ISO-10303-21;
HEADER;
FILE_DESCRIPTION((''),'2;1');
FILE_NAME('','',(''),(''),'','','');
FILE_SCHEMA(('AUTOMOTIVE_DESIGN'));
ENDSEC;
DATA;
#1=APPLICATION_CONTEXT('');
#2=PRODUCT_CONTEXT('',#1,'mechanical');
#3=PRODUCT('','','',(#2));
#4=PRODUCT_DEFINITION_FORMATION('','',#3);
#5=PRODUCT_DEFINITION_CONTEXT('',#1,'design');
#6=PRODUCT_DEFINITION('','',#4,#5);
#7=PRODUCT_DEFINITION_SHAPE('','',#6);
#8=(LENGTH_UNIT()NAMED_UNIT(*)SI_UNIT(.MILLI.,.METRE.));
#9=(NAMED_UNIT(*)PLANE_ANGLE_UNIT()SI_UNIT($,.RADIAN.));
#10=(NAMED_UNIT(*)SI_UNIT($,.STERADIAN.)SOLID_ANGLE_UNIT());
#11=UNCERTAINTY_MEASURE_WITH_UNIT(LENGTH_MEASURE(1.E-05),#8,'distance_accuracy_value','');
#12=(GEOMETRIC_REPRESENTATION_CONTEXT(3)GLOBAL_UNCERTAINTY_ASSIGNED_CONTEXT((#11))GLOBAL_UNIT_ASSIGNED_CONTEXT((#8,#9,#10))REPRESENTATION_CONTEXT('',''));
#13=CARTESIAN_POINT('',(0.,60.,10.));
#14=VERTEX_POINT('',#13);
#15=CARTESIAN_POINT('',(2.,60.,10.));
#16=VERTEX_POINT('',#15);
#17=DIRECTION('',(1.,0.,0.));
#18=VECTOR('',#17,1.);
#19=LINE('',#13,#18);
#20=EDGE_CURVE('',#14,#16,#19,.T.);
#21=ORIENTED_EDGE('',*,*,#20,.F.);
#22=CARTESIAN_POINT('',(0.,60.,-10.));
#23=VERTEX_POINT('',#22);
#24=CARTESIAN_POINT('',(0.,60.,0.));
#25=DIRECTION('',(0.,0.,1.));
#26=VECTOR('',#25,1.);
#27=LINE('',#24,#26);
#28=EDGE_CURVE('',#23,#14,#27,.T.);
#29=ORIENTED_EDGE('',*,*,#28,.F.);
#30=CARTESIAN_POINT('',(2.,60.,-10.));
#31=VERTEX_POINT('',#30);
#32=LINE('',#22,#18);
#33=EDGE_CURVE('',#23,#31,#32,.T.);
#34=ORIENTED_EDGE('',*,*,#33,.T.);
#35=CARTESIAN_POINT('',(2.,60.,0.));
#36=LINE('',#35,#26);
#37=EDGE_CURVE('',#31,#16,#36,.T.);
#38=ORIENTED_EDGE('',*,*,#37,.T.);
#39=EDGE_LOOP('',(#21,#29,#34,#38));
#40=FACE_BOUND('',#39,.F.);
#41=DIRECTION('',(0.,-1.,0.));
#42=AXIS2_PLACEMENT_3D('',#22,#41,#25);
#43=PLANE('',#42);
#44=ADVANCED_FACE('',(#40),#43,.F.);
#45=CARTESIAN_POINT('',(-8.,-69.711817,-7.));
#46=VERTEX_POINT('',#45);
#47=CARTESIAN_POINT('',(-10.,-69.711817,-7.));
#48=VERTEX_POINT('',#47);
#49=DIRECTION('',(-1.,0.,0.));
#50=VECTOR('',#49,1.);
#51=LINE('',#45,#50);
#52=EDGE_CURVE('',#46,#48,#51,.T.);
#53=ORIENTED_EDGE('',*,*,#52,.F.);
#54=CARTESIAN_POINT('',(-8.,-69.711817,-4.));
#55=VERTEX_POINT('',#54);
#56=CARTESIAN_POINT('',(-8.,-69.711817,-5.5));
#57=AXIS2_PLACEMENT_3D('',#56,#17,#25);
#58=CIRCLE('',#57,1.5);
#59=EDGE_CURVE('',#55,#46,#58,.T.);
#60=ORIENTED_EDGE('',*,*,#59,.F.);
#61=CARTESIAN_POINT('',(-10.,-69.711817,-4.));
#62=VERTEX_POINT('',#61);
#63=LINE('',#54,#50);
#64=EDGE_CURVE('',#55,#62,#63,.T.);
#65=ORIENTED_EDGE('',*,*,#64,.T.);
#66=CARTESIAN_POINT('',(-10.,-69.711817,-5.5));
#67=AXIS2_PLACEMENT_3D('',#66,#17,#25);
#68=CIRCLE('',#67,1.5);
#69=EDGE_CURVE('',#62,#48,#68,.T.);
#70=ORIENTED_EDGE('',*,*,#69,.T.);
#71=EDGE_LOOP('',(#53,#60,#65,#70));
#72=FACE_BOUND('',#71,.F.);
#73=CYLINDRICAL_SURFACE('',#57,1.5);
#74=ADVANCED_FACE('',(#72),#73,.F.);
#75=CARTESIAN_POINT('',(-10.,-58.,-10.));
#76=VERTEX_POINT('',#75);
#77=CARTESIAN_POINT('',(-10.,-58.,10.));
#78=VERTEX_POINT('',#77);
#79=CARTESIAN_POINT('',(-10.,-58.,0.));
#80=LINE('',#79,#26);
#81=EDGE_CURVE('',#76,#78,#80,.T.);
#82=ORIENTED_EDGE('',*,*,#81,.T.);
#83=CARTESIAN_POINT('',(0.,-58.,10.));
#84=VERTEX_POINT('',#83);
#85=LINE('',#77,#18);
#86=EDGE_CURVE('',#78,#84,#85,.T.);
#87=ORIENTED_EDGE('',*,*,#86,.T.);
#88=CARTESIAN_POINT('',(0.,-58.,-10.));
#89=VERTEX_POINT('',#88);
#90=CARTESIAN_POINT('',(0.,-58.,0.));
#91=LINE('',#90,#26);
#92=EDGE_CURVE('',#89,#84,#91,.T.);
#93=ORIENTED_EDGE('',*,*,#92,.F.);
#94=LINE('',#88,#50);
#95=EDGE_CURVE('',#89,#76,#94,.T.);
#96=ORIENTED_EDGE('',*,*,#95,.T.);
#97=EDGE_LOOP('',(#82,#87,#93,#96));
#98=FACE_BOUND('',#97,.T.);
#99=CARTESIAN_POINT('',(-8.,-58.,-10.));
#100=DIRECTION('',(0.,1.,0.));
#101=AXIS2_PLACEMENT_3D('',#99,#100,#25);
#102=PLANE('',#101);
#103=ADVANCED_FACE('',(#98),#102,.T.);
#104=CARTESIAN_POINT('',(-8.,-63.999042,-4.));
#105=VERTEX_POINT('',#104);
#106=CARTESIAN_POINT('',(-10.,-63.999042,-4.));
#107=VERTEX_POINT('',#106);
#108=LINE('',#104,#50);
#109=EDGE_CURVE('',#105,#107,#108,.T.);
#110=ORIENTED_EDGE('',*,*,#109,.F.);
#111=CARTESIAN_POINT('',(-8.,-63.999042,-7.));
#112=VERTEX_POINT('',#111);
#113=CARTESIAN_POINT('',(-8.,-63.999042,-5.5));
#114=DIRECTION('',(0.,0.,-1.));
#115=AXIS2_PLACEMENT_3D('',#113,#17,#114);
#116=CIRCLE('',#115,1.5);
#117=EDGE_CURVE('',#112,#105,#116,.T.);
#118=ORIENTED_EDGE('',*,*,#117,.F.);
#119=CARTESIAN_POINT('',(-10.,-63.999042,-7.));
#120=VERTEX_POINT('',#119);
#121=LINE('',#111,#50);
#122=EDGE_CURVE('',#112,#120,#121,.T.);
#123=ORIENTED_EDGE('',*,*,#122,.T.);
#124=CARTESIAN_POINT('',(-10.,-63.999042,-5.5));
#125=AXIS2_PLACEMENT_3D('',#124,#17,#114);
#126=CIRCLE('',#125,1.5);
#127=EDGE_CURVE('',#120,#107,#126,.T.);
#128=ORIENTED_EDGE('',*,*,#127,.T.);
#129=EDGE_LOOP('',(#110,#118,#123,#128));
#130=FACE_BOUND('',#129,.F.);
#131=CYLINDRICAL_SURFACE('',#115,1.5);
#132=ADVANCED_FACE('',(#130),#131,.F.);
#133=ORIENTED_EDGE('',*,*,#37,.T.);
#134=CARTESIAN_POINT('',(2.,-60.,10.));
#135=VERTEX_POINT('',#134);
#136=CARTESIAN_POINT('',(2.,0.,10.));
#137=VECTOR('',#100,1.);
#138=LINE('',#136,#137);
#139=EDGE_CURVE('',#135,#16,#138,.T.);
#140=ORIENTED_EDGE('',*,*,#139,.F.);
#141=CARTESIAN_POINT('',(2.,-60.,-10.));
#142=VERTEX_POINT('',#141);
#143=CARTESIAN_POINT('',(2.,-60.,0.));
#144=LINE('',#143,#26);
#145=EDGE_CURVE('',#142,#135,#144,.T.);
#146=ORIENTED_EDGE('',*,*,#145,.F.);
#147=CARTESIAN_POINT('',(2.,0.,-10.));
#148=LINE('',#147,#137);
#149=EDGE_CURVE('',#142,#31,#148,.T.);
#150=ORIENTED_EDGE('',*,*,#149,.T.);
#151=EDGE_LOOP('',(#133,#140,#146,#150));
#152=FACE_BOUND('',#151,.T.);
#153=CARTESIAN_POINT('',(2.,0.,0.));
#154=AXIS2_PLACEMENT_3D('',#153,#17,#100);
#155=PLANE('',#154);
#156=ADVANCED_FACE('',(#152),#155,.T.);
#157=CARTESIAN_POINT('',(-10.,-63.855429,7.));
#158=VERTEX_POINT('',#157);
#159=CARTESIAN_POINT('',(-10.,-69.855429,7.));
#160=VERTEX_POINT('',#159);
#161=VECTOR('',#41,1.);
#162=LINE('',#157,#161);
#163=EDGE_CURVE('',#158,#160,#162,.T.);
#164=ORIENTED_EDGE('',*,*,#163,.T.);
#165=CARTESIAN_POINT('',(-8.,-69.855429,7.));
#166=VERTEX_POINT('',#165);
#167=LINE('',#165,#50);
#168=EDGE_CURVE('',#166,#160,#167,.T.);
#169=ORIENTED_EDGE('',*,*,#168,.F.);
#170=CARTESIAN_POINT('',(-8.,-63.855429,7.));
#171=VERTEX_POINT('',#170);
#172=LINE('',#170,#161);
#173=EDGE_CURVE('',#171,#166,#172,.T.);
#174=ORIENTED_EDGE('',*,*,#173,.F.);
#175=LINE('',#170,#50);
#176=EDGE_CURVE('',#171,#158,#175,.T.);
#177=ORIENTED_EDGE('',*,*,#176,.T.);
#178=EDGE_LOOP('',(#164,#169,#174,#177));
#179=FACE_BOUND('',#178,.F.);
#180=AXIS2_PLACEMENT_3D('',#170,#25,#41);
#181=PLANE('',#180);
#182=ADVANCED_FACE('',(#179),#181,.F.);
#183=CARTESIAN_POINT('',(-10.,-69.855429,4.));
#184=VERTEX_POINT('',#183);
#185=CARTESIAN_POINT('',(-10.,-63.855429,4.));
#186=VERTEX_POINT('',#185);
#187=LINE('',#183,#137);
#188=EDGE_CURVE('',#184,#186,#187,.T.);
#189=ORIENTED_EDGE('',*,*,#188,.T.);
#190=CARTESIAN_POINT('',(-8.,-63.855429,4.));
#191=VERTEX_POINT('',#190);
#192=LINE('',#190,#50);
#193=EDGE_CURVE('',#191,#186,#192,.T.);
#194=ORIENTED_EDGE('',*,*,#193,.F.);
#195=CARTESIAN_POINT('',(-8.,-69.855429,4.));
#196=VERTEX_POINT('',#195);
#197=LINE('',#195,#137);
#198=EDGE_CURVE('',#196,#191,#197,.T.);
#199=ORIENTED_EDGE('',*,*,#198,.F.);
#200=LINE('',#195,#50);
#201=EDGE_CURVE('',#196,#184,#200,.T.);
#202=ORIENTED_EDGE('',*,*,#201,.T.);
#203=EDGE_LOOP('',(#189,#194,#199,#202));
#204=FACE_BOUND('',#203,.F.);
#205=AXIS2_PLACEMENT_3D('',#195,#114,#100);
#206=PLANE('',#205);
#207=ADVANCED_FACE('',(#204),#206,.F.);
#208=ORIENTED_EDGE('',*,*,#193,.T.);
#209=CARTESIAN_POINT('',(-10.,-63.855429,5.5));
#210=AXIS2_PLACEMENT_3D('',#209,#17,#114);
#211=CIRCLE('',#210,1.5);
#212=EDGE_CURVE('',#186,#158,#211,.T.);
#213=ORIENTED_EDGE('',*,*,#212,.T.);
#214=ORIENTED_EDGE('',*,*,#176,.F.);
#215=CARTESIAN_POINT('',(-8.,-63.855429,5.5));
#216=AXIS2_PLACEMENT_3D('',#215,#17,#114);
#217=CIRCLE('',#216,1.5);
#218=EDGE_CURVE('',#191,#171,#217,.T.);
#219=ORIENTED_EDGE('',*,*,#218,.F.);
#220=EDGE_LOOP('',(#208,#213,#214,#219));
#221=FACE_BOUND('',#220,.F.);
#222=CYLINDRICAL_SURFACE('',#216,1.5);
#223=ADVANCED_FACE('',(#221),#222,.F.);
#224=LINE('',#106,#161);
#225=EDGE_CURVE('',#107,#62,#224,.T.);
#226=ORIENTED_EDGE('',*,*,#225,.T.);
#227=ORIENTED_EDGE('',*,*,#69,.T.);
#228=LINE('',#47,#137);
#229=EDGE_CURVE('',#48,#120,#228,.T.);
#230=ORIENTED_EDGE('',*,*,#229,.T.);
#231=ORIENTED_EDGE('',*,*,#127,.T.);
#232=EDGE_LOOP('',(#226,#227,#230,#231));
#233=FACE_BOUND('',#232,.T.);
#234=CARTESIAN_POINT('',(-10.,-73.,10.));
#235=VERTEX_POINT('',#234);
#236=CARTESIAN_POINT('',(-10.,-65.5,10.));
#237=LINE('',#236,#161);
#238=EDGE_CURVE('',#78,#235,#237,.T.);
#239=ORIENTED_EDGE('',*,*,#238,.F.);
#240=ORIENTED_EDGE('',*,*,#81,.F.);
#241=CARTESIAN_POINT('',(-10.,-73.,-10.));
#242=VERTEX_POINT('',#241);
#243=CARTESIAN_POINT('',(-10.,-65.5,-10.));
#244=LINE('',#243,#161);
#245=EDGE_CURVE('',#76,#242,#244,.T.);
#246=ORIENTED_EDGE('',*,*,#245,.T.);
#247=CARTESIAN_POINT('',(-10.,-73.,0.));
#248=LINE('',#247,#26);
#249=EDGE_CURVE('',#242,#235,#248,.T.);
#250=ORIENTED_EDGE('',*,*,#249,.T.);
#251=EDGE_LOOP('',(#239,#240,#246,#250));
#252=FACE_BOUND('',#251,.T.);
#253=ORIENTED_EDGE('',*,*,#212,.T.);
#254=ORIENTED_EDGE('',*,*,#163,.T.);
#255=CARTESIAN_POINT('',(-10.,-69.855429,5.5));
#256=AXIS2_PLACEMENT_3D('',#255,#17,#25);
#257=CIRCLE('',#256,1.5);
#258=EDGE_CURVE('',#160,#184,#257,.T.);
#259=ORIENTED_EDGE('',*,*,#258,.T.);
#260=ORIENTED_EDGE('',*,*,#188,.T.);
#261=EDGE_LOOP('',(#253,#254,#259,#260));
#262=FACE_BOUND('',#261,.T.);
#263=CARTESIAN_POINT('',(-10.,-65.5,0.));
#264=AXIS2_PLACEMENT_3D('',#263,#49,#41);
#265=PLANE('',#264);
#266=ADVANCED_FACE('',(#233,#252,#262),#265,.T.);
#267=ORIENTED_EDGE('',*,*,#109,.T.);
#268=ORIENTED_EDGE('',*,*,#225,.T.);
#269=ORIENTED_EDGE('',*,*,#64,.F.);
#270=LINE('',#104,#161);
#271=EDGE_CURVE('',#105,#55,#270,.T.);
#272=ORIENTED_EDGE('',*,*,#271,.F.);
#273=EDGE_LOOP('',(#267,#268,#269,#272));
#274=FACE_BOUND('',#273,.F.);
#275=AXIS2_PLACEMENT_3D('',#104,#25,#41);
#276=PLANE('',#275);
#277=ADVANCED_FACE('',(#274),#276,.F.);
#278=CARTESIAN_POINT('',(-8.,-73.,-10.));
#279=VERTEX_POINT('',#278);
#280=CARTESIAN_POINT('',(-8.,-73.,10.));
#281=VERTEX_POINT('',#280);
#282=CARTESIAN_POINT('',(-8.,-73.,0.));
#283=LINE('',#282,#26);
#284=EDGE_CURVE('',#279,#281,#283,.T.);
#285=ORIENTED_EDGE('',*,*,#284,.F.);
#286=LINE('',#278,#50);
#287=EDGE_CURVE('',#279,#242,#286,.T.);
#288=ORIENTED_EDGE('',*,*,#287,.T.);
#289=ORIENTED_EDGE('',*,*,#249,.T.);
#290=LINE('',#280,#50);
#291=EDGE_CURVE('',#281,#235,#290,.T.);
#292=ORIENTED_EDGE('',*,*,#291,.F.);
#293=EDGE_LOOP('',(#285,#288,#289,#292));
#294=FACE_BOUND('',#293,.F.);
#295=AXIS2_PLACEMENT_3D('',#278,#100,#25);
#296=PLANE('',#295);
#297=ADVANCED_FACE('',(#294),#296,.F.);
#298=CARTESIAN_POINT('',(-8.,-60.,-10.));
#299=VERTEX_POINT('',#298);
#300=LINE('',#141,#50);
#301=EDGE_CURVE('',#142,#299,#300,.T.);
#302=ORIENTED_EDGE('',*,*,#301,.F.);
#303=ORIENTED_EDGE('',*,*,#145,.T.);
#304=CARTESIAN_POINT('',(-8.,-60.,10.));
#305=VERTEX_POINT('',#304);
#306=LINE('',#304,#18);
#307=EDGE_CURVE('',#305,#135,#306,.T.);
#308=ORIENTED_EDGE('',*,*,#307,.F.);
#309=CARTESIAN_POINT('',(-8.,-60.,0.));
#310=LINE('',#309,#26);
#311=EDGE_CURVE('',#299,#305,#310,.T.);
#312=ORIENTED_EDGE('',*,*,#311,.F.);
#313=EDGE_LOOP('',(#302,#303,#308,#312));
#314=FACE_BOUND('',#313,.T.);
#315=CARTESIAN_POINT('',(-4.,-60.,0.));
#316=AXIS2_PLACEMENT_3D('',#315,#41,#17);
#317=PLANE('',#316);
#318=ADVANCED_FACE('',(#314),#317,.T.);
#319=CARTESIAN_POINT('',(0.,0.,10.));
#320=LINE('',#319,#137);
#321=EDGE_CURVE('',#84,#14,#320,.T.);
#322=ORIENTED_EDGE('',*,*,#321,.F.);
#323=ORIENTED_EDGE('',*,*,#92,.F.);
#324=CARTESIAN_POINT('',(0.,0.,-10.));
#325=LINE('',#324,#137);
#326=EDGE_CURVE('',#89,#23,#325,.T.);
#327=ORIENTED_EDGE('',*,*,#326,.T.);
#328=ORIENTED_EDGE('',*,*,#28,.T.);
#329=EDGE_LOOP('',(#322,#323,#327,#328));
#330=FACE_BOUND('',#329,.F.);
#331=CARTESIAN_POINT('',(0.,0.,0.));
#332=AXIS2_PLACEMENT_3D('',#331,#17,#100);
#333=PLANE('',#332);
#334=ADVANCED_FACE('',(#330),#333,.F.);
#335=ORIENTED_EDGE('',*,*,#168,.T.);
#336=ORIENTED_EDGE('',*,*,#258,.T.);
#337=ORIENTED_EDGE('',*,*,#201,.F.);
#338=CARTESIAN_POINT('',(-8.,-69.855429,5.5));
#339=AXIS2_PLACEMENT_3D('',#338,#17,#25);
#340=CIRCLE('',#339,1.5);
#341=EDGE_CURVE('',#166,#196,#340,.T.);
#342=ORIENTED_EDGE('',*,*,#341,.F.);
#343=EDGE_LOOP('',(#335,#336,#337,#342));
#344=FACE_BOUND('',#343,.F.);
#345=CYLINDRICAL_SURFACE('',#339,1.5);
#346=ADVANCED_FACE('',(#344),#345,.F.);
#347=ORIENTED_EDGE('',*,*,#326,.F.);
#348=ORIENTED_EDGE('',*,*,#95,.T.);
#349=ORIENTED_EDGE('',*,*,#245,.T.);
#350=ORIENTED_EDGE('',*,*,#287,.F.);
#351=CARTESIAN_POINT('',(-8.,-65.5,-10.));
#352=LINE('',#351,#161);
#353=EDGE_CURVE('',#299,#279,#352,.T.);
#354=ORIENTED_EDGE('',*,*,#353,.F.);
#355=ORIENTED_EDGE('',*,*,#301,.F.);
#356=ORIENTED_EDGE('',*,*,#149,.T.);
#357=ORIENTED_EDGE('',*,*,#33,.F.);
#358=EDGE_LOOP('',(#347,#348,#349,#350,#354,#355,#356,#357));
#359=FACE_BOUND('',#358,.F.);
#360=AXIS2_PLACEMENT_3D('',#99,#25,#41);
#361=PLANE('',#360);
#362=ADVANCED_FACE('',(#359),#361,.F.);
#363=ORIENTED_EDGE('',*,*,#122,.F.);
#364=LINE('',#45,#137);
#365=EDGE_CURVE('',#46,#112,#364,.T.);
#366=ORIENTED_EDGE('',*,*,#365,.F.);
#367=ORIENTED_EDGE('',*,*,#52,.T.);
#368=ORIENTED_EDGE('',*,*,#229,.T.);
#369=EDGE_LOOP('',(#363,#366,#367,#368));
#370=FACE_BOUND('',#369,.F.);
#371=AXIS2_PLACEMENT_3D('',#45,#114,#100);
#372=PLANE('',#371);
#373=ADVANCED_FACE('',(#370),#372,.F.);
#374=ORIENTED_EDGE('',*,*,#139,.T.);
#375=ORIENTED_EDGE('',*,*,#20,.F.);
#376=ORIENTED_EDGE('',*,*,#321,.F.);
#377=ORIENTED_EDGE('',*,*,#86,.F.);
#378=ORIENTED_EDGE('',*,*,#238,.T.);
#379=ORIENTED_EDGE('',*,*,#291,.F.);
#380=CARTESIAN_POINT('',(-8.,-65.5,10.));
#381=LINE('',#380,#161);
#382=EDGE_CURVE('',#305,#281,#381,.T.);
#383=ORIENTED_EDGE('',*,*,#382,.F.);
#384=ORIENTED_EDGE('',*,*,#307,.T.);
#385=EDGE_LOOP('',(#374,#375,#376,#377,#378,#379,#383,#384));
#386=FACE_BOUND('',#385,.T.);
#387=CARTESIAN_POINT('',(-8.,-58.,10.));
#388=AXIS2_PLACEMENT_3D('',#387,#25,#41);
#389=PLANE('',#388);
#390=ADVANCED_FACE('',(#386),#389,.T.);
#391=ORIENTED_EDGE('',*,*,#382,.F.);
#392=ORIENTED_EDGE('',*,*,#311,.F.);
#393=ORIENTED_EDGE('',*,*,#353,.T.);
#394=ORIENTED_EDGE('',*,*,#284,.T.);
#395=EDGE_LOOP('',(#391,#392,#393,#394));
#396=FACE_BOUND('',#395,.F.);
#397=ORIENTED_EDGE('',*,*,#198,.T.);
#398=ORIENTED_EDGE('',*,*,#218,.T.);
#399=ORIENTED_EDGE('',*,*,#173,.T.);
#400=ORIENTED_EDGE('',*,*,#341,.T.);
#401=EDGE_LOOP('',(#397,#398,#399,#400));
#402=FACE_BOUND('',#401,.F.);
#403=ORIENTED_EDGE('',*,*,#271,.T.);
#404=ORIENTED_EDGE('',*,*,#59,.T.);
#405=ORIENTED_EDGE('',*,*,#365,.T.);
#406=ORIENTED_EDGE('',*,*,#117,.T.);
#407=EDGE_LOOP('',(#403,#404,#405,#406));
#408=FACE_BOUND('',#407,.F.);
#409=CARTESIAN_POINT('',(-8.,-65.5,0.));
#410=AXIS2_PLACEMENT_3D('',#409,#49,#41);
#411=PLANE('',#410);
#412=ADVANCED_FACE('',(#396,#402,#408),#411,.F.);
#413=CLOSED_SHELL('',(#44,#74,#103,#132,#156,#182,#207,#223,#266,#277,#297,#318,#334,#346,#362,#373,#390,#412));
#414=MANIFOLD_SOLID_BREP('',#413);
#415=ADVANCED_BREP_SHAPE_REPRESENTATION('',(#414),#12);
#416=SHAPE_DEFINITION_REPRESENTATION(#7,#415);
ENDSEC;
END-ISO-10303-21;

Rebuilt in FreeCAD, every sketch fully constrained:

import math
import FreeCAD as App
import Part
import Sketcher


def add_polygon(sketch, points):
    """Adds a closed chain of lines whose ends are joined by coincident constraints."""
    first, n = sketch.GeometryCount, len(points)
    for a, b in zip(points, points[1:] + points[:1]):
        sketch.addGeometry(Part.LineSegment(App.Vector(*a, 0), App.Vector(*b, 0)), False)
    for i in range(n):
        sketch.addConstraint(Sketcher.Constraint("Coincident", first + i, 2, first + (i + 1) % n, 1))

doc = App.newDocument("Part")
body = doc.addObject("PartDesign::Body", "Body")

# Sketch on YZ plane
sketch1 = body.newObject("Sketcher::SketchObject", "Sketch")
sketch1.AttachmentSupport = (doc.getObject("YZ_Plane"), [""])
sketch1.MapMode = "FlatFace"
add_polygon(sketch1, [(-60, 10), (-60, -10), (60, -10), (60, 10)])  # lines 0-3
sketch1.addConstraint([
    Sketcher.Constraint("Vertical", 0),
    Sketcher.Constraint("Horizontal", 1),
    Sketcher.Constraint("Vertical", 2),
    Sketcher.Constraint("Horizontal", 3),
    Sketcher.Constraint("Symmetric", 0, 2, 2, 2, -1, 1),
    Sketcher.Constraint("DistanceX", 1, 1, 1, 2, 120.0),
    Sketcher.Constraint("DistanceY", 0, 2, 0, 1, 20.0),
])
pad1 = body.newObject("PartDesign::Pad", "Pad")
pad1.Profile = sketch1
pad1.Length = 2

# Sketch on XZ plane
sketch2 = body.newObject("Sketcher::SketchObject", "Sketch001")
sketch2.AttachmentSupport = (doc.getObject("XZ_Plane"), [""])
sketch2.MapMode = "FlatFace"
sketch2.AttachmentOffset = App.Placement(App.Vector(0, 0, 60), App.Rotation())
add_polygon(sketch2, [(-8, 10), (-8, -10), (0, -10), (0, 10)])  # lines 0-3
sketch2.addConstraint([
    Sketcher.Constraint("Vertical", 0),
    Sketcher.Constraint("Horizontal", 1),
    Sketcher.Constraint("Vertical", 2),
    Sketcher.Constraint("Horizontal", 3),
    Sketcher.Constraint("Symmetric", 1, 2, 2, 2, -1, 1),
    Sketcher.Constraint("DistanceX", 1, 1, 1, 2, 8.0),
    Sketcher.Constraint("DistanceY", 0, 2, 0, 1, 20.0),
])
pad2 = body.newObject("PartDesign::Pad", "Pad001")
pad2.Profile = sketch2
pad2.Length = 2
pad2.Reversed = True

# Sketch on YZ plane
sketch3 = body.newObject("Sketcher::SketchObject", "Sketch002")
sketch3.AttachmentSupport = (doc.getObject("YZ_Plane"), [""])
sketch3.MapMode = "FlatFace"
sketch3.AttachmentOffset = App.Placement(App.Vector(0, 0, -8), App.Rotation())
add_polygon(sketch3, [(-58, 10), (-58, -10), (-73, -10), (-73, 10)])  # lines 0-3
sketch3.addGeometry(Part.ArcOfCircle(Part.Circle(App.Vector(-69.7, -5.5, 0), App.Vector(0, 0, 1), 1.5), math.radians(90), math.radians(270)), False)  # 4
sketch3.addGeometry(Part.LineSegment(App.Vector(-69.7, -7, 0), App.Vector(-64, -7, 0)), False)  # 5
sketch3.addGeometry(Part.ArcOfCircle(Part.Circle(App.Vector(-64, -5.5, 0), App.Vector(0, 0, 1), 1.5), math.radians(-90), math.radians(90)), False)  # 6
sketch3.addGeometry(Part.LineSegment(App.Vector(-64, -4, 0), App.Vector(-69.7, -4, 0)), False)  # 7
sketch3.addGeometry(Part.ArcOfCircle(Part.Circle(App.Vector(-69.9, 5.5, 0), App.Vector(0, 0, 1), 1.5), math.radians(90), math.radians(270)), False)  # 8
sketch3.addGeometry(Part.LineSegment(App.Vector(-69.9, 4, 0), App.Vector(-63.9, 4, 0)), False)  # 9
sketch3.addGeometry(Part.ArcOfCircle(Part.Circle(App.Vector(-63.9, 5.5, 0), App.Vector(0, 0, 1), 1.5), math.radians(-90), math.radians(90)), False)  # 10
sketch3.addGeometry(Part.LineSegment(App.Vector(-63.9, 7, 0), App.Vector(-69.9, 7, 0)), False)  # 11
sketch3.addConstraint([
    Sketcher.Constraint("Tangent", 4, 2, 5, 1),
    Sketcher.Constraint("Tangent", 5, 2, 6, 1),
    Sketcher.Constraint("Tangent", 6, 2, 7, 1),
    Sketcher.Constraint("Tangent", 7, 2, 4, 1),
    Sketcher.Constraint("Tangent", 8, 2, 9, 1),
    Sketcher.Constraint("Tangent", 9, 2, 10, 1),
    Sketcher.Constraint("Tangent", 10, 2, 11, 1),
    Sketcher.Constraint("Tangent", 11, 2, 8, 1),
    Sketcher.Constraint("Vertical", 0),
    Sketcher.Constraint("Horizontal", 1),
    Sketcher.Constraint("Vertical", 2),
    Sketcher.Constraint("Horizontal", 3),
    Sketcher.Constraint("Horizontal", 5),
    Sketcher.Constraint("Horizontal", 7),
    Sketcher.Constraint("Horizontal", 9),
    Sketcher.Constraint("Horizontal", 11),
    Sketcher.Constraint("Equal", 6, 8),
    Sketcher.Constraint("Radius", 4, 1.5),
    Sketcher.Constraint("DistanceX", 1, 2, 1, 1, 15.0),
    Sketcher.Constraint("DistanceX", 9, 1, 9, 2, 6.0),
    Sketcher.Constraint("DistanceY", 0, 2, 0, 1, 20.0),
    Sketcher.Constraint("DistanceX", 0, 2, -1, 1, 58.0),
    Sketcher.Constraint("DistanceY", 0, 2, -1, 1, 10.0),
    Sketcher.Constraint("DistanceY", 4, 2, -1, 1, 7.0),
    Sketcher.Constraint("DistanceY", -1, 1, 8, 2, 4.0),
    Sketcher.Constraint("DistanceX", 5, 1, 5, 2, 5.712775),
    Sketcher.Constraint("DistanceX", 8, 3, -1, 1, 69.855429),
    Sketcher.Constraint("DistanceX", 4, 3, -1, 1, 69.711817),
])
pad3 = body.newObject("PartDesign::Pad", "Pad002")
pad3.Profile = sketch3
pad3.Length = 2
pad3.Reversed = True

doc.recompute()
